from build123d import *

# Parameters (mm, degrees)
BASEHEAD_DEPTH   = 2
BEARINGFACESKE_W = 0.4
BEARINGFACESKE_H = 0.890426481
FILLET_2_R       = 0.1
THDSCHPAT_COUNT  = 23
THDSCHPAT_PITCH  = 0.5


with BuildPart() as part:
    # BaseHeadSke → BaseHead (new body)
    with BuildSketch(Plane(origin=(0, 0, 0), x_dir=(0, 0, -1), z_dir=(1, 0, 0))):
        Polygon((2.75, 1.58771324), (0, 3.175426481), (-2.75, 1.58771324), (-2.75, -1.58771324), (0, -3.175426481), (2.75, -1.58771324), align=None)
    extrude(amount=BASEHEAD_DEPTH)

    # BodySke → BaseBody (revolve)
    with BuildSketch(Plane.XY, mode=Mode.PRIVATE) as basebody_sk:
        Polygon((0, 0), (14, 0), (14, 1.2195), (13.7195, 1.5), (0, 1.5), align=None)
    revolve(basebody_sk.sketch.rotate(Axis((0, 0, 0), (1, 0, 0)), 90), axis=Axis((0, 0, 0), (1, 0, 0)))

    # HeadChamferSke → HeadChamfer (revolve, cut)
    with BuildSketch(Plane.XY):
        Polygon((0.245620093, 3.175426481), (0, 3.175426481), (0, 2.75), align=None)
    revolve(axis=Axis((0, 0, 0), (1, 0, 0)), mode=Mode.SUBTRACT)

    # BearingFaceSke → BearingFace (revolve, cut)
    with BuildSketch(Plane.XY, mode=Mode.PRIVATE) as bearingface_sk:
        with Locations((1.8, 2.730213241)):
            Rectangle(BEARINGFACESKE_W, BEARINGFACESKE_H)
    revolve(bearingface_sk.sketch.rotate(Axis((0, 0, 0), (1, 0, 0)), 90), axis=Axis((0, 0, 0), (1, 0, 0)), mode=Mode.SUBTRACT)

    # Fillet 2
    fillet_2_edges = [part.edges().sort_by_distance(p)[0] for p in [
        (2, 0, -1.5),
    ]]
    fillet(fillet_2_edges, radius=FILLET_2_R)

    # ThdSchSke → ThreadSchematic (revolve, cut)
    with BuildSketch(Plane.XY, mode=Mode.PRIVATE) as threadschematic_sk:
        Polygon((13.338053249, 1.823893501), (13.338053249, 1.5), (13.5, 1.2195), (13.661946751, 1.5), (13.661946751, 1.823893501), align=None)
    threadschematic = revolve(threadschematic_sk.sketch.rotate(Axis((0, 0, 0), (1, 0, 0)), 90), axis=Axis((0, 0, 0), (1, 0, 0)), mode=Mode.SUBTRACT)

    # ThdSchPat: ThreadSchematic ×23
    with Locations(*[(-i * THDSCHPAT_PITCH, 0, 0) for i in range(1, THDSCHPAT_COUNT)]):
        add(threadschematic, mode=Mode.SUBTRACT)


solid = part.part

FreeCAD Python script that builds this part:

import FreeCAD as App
import Part
import Sketcher
from FreeCAD import Vector
Q = App.Units.Quantity


def edges_at(feature, points):
    """Names of the edges that pass closest to the given points."""
    edges = feature.Shape.Edges
    near = lambda p: min(range(len(edges)), key=lambda i: edges[i].distToShape(Part.Vertex(*p))[0])
    return sorted({f"Edge{near(p) + 1}" for p in points})

doc = App.newDocument("Part")
body = doc.addObject("PartDesign::Body", "Body")

# Sketch on YZ plane
sketch1 = body.newObject("Sketcher::SketchObject", "Sketch")
sketch1.AttachmentSupport = (doc.getObject("YZ_Plane"), [""])
sketch1.MapMode = "FlatFace"
sketch1.addGeometry(Part.LineSegment(Vector(1.6, -2.8, 0), Vector(3.2, 0, 0)), False)
sketch1.addGeometry(Part.LineSegment(Vector(3.2, 0, 0), Vector(1.6, 2.8, 0)), False)
sketch1.addGeometry(Part.LineSegment(Vector(1.6, 2.8, 0), Vector(-1.6, 2.8, 0)), False)
sketch1.addGeometry(Part.LineSegment(Vector(-1.6, 2.8, 0), Vector(-3.2, 0, 0)), False)
sketch1.addGeometry(Part.LineSegment(Vector(-3.2, 0, 0), Vector(-1.6, -2.8, 0)), False)
sketch1.addGeometry(Part.LineSegment(Vector(-1.6, -2.8, 0), Vector(1.6, -2.8, 0)), False)
sketch1.addConstraint(Sketcher.Constraint("Coincident", 0, 2, 1, 1))
sketch1.addConstraint(Sketcher.Constraint("Coincident", 1, 2, 2, 1))
sketch1.addConstraint(Sketcher.Constraint("Coincident", 2, 2, 3, 1))
sketch1.addConstraint(Sketcher.Constraint("Coincident", 3, 2, 4, 1))
sketch1.addConstraint(Sketcher.Constraint("Coincident", 4, 2, 5, 1))
sketch1.addConstraint(Sketcher.Constraint("Coincident", 5, 2, 0, 1))
sketch1.addConstraint(Sketcher.Constraint("Horizontal", 2))
sketch1.addConstraint(Sketcher.Constraint("Horizontal", 5))
sketch1.addConstraint(Sketcher.Constraint("Symmetric", 0, 2, 3, 2, -1, 1))
sketch1.addConstraint(Sketcher.Constraint("Symmetric", 1, 2, 4, 2, -1, 1))
sketch1.addConstraint(Sketcher.Constraint("PointOnObject", 0, 2, -1))
sketch1.addConstraint(Sketcher.Constraint("Parallel", 0, 3))
sketch1.addConstraint(Sketcher.Constraint("Vertical", 2, 2, 4, 2))
sketch1.addConstraint(Sketcher.Constraint("Angle", 0, Q("60 deg")))
sketch1.addConstraint(Sketcher.Constraint("DistanceY", 4, 2, 2, 2, Q("5.5 mm")))
sketch1.addConstraint(Sketcher.Constraint("DistanceX", 2, 2, 2, 1, Q("3.175426 mm")))
pad1 = body.newObject("PartDesign::Pad", "Pad")
pad1.Profile = sketch1
pad1.Length = 2

# Sketch on XY plane
sketch2 = body.newObject("Sketcher::SketchObject", "Sketch001")
sketch2.AttachmentSupport = (doc.getObject("XY_Plane"), [""])
sketch2.MapMode = "FlatFace"
sketch2.addGeometry(Part.LineSegment(Vector(0, 0, 0), Vector(14, 0, 0)), False)
sketch2.addGeometry(Part.LineSegment(Vector(14, 0, 0), Vector(14, 1.22, 0)), False)
sketch2.addGeometry(Part.LineSegment(Vector(14, 1.22, 0), Vector(13.72, 1.5, 0)), False)
sketch2.addGeometry(Part.LineSegment(Vector(13.72, 1.5, 0), Vector(0, 1.5, 0)), False)
sketch2.addGeometry(Part.LineSegment(Vector(0, 1.5, 0), Vector(0, 0, 0)), False)
sketch2.addConstraint(Sketcher.Constraint("Coincident", 0, 2, 1, 1))
sketch2.addConstraint(Sketcher.Constraint("Coincident", 1, 2, 2, 1))
sketch2.addConstraint(Sketcher.Constraint("Coincident", 2, 2, 3, 1))
sketch2.addConstraint(Sketcher.Constraint("Coincident", 3, 2, 4, 1))
sketch2.addConstraint(Sketcher.Constraint("Coincident", 4, 2, 0, 1))
sketch2.addConstraint(Sketcher.Constraint("Horizontal", 0))
sketch2.addConstraint(Sketcher.Constraint("Vertical", 1))
sketch2.addConstraint(Sketcher.Constraint("Horizontal", 3))
sketch2.addConstraint(Sketcher.Constraint("Vertical", 4))
sketch2.addConstraint(Sketcher.Constraint("Coincident", 4, 2, -1, 1))
sketch2.addConstraint(Sketcher.Constraint("DistanceX", 0, 1, 0, 2, Q("14 mm")))
sketch2.addConstraint(Sketcher.Constraint("Angle", 2, Q("135 deg")))
sketch2.addConstraint(Sketcher.Constraint("DistanceY", 4, 2, 4, 1, Q("1.5 mm")))
sketch2.addConstraint(Sketcher.Constraint("DistanceX", 3, 2, 3, 1, Q("13.7195 mm")))
revolution = body.newObject("PartDesign::Revolution", "Revolution")
revolution.Profile = sketch2
revolution.ReferenceAxis = (sketch2, ["H_Axis"])
revolution.Angle = 360

# Sketch on XY plane
sketch3 = body.newObject("Sketcher::SketchObject", "Sketch002")
sketch3.AttachmentSupport = (doc.getObject("XY_Plane"), [""])
sketch3.MapMode = "FlatFace"
sketch3.addGeometry(Part.LineSegment(Vector(0.25, 3.18, 0), Vector(0, 3.18, 0)), False)
sketch3.addGeometry(Part.LineSegment(Vector(0, 3.18, 0), Vector(0, 2.75, 0)), False)
sketch3.addGeometry(Part.LineSegment(Vector(0, 2.75, 0), Vector(0.25, 3.18, 0)), False)
sketch3.addConstraint(Sketcher.Constraint("Coincident", 0, 2, 1, 1))
sketch3.addConstraint(Sketcher.Constraint("Coincident", 1, 2, 2, 1))
sketch3.addConstraint(Sketcher.Constraint("Coincident", 2, 2, 0, 1))
sketch3.addConstraint(Sketcher.Constraint("Horizontal", 0))
sketch3.addConstraint(Sketcher.Constraint("Vertical", 1))
sketch3.addConstraint(Sketcher.Constraint("PointOnObject", 0, 2, -2))
sketch3.addConstraint(Sketcher.Constraint("Angle", 2, Q("60 deg")))
sketch3.addConstraint(Sketcher.Constraint("DistanceY", -1, 1, 1, 2, Q("2.75 mm")))
sketch3.addConstraint(Sketcher.Constraint("DistanceX", 0, 2, 0, 1, Q("0.24562 mm")))
groove = body.newObject("PartDesign::Groove", "Groove")
groove.Profile = sketch3
groove.ReferenceAxis = (sketch3, ["H_Axis"])
groove.Angle = 360

# Sketch on XY plane
sketch4 = body.newObject("Sketcher::SketchObject", "Sketch003")
sketch4.AttachmentSupport = (doc.getObject("XY_Plane"), [""])
sketch4.MapMode = "FlatFace"
sketch4.addGeometry(Part.LineSegment(Vector(1.6, 3.18, 0), Vector(1.6, 2.29, 0)), False)
sketch4.addGeometry(Part.LineSegment(Vector(1.6, 2.29, 0), Vector(2, 2.29, 0)), False)
sketch4.addGeometry(Part.LineSegment(Vector(2, 2.29, 0), Vector(2, 3.18, 0)), False)
sketch4.addGeometry(Part.LineSegment(Vector(2, 3.18, 0), Vector(1.6, 3.18, 0)), False)
sketch4.addConstraint(Sketcher.Constraint("Coincident", 0, 2, 1, 1))
sketch4.addConstraint(Sketcher.Constraint("Coincident", 1, 2, 2, 1))
sketch4.addConstraint(Sketcher.Constraint("Coincident", 2, 2, 3, 1))
sketch4.addConstraint(Sketcher.Constraint("Coincident", 3, 2, 0, 1))
sketch4.addConstraint(Sketcher.Constraint("Vertical", 0))
sketch4.addConstraint(Sketcher.Constraint("Horizontal", 1))
sketch4.addConstraint(Sketcher.Constraint("Vertical", 2))
sketch4.addConstraint(Sketcher.Constraint("Horizontal", 3))
sketch4.addConstraint(Sketcher.Constraint("DistanceX", 1, 1, 1, 2, Q("0.4 mm")))
sketch4.addConstraint(Sketcher.Constraint("DistanceX", -1, 1, 1, 2, Q("2 mm")))
sketch4.addConstraint(Sketcher.Constraint("DistanceY", -1, 1, 0, 2, Q("2.285 mm")))
sketch4.addConstraint(Sketcher.Constraint("DistanceY", 0, 2, 0, 1, Q("0.890426 mm")))
groove2 = body.newObject("PartDesign::Groove", "Groove001")
groove2.Profile = sketch4
groove2.ReferenceAxis = (sketch4, ["H_Axis"])
groove2.Angle = 360
doc.recompute()

fillet = body.newObject("PartDesign::Fillet", "Fillet")
fillet.Base = (groove2, edges_at(groove2, [(2, 0, -1.5)]))
fillet.Radius = 0.1

# Sketch on XY plane
sketch5 = body.newObject("Sketcher::SketchObject", "Sketch004")
sketch5.AttachmentSupport = (doc.getObject("XY_Plane"), [""])
sketch5.MapMode = "FlatFace"
sketch5.addGeometry(Part.LineSegment(Vector(13.34, 1.82, 0), Vector(13.34, 1.5, 0)), False)
sketch5.addGeometry(Part.LineSegment(Vector(13.34, 1.5, 0), Vector(13.5, 1.22, 0)), False)
sketch5.addGeometry(Part.LineSegment(Vector(13.5, 1.22, 0), Vector(13.66, 1.5, 0)), False)
sketch5.addGeometry(Part.LineSegment(Vector(13.66, 1.5, 0), Vector(13.66, 1.82, 0)), False)
sketch5.addGeometry(Part.LineSegment(Vector(13.66, 1.82, 0), Vector(13.34, 1.82, 0)), False)
sketch5.addConstraint(Sketcher.Constraint("Coincident", 0, 2, 1, 1))
sketch5.addConstraint(Sketcher.Constraint("Coincident", 1, 2, 2, 1))
sketch5.addConstraint(Sketcher.Constraint("Coincident", 2, 2, 3, 1))
sketch5.addConstraint(Sketcher.Constraint("Coincident", 3, 2, 4, 1))
sketch5.addConstraint(Sketcher.Constraint("Coincident", 4, 2, 0, 1))
sketch5.addConstraint(Sketcher.Constraint("Vertical", 0))
sketch5.addConstraint(Sketcher.Constraint("Vertical", 3))
sketch5.addConstraint(Sketcher.Constraint("Horizontal", 4))
sketch5.addConstraint(Sketcher.Constraint("Horizontal", 0, 2, 2, 2))
sketch5.addConstraint(Sketcher.Constraint("Equal", 4, 0))
sketch5.addConstraint(Sketcher.Constraint("Equal", 1, 2))
sketch5.addConstraint(Sketcher.Constraint("Angle", 1, Q("-60 deg")))
sketch5.addConstraint(Sketcher.Constraint("DistanceY", -1, 1, 0, 2, Q("1.5 mm")))
sketch5.addConstraint(Sketcher.Constraint("DistanceX", -1, 1, 1, 2, Q("13.5 mm")))
sketch5.addConstraint(Sketcher.Constraint("DistanceY", -1, 1, 1, 2, Q("1.2195 mm")))
groove3 = body.newObject("PartDesign::Groove", "Groove002")
groove3.Profile = sketch5
groove3.ReferenceAxis = (sketch5, ["H_Axis"])
groove3.Angle = 360
doc.recompute()

linearpattern = body.newObject("PartDesign::LinearPattern", "LinearPattern")
linearpattern.Originals = [groove3]
linearpattern.Direction = (doc.getObject("X_Axis"), [""])
linearpattern.Mode = "offset"
linearpattern.Offset = 0.5
linearpattern.Occurrences = 23
linearpattern.Reversed = True
body.Tip = linearpattern

doc.recompute()
